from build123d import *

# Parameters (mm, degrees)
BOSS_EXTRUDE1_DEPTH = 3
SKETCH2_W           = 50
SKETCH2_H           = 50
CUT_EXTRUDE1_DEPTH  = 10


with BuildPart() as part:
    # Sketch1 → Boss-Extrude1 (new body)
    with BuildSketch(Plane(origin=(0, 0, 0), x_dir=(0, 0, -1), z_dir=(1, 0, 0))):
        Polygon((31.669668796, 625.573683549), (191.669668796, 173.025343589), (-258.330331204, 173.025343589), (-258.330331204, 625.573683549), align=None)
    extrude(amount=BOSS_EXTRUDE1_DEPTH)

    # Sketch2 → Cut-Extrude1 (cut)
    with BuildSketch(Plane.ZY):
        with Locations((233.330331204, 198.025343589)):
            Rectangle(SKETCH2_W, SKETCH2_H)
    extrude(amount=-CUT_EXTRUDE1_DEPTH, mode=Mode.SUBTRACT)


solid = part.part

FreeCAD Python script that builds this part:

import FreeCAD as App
import Part
import Sketcher
from FreeCAD import Vector


def add_polygon(sketch, points):
    """Adds a closed chain of lines whose ends are joined by coincident constraints."""
    first, n = sketch.GeometryCount, len(points)
    for a, b in zip(points, points[1:] + points[:1]):
        sketch.addGeometry(Part.LineSegment(App.Vector(*a, 0), App.Vector(*b, 0)), False)
    for i in range(n):
        sketch.addConstraint(Sketcher.Constraint("Coincident", first + i, 2, first + (i + 1) % n, 1))

doc = App.newDocument("Part")
body = doc.addObject("PartDesign::Body", "Body")

sketch1 = body.newObject("Sketcher::SketchObject", "Sketch")
sketch1.AttachmentSupport = (doc.getObject("YZ_Plane"), [""])
sketch1.MapMode = "FlatFace"
add_polygon(sketch1, [(173.025344, -191.669669), (625.573684, -31.669669), (625.573684, 258.330331), (173.025344, 258.330331)])
sketch1.addConstraint([
    Sketcher.Constraint("Vertical", 1),
    Sketcher.Constraint("Horizontal", 2),
    Sketcher.Constraint("Vertical", 3),
    Sketcher.Constraint("DistanceY", 1, 1, 1, 2, 290.0),
    Sketcher.Constraint("DistanceY", 3, 2, 3, 1, 450.0),
    Sketcher.Constraint("Distance", 0, 480.0),
    Sketcher.Constraint("DistanceY", 0, 2, -1, 1, 31.669669),
    Sketcher.Constraint("DistanceX", -1, 1, 0, 2, 625.573684),
])
pad1 = body.newObject("PartDesign::Pad", "Pad")
pad1.Profile = sketch1
pad1.Length = 3

sketch2 = body.newObject("Sketcher::SketchObject", "Sketch001")
sketch2.AttachmentSupport = (doc.getObject("YZ_Plane"), [""])
sketch2.MapMode = "FlatFace"
add_polygon(sketch2, [(223.025344, 208.330331), (173.025344, 208.330331), (173.025344, 258.330331), (223.025344, 258.330331)])
sketch2.addConstraint([
    Sketcher.Constraint("Horizontal", 0),
    Sketcher.Constraint("Vertical", 1),
    Sketcher.Constraint("Horizontal", 2),
    Sketcher.Constraint("Vertical", 3),
    Sketcher.Constraint("Equal", 2, 1),
    Sketcher.Constraint("DistanceX", 0, 2, 0, 1, 50.0),
    Sketcher.Constraint("DistanceY", -1, 1, 0, 2, 208.330331),
    Sketcher.Constraint("DistanceX", -1, 1, 0, 2, 173.025344),
])
pocket1 = body.newObject("PartDesign::Pocket", "Pocket")
pocket1.Profile = sketch2
pocket1.Length = 10
pocket1.Reversed = True

doc.recompute()
